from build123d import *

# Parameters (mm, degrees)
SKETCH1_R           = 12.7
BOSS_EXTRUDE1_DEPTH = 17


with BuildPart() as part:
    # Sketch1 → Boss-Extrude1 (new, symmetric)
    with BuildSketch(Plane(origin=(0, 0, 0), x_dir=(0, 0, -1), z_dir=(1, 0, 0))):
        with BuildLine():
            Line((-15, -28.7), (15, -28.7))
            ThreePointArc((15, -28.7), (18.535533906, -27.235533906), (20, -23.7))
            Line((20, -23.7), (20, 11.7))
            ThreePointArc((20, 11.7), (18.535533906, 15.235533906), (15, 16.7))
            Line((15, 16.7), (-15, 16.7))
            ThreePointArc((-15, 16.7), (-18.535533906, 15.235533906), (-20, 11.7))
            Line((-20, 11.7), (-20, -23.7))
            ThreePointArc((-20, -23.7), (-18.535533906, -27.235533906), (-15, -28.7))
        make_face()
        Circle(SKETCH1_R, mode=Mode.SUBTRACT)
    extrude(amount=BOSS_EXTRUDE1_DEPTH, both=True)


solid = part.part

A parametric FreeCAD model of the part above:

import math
import FreeCAD as App
import Part
import Sketcher

V = App.Vector

doc = App.newDocument("Part")
body = doc.addObject("PartDesign::Body", "Body")

# Sketch on YZ plane
sketch1 = body.newObject("Sketcher::SketchObject", "Sketch")
sketch1.AttachmentSupport = (doc.getObject("YZ_Plane"), [""])
sketch1.MapMode = "FlatFace"
sketch1.addGeometry(Part.LineSegment(V(-28.7, 15, 0), V(-28.7, -15, 0)), False)
sketch1.addGeometry(Part.ArcOfCircle(Part.Circle(V(-23.7, -15, 0), V(0, 0, 1), 5), math.radians(180), math.radians(270)), False)
sketch1.addGeometry(Part.LineSegment(V(-23.7, -20, 0), V(11.7, -20, 0)), False)
sketch1.addGeometry(Part.ArcOfCircle(Part.Circle(V(11.7, -15, 0), V(0, 0, 1), 5), math.radians(-90), math.radians(0)), False)
sketch1.addGeometry(Part.LineSegment(V(16.7, -15, 0), V(16.7, 15, 0)), False)
sketch1.addGeometry(Part.ArcOfCircle(Part.Circle(V(11.7, 15, 0), V(0, 0, 1), 5), math.radians(0), math.radians(90)), False)
sketch1.addGeometry(Part.LineSegment(V(11.7, 20, 0), V(-23.7, 20, 0)), False)
sketch1.addGeometry(Part.ArcOfCircle(Part.Circle(V(-23.7, 15, 0), V(0, 0, 1), 5), math.radians(90), math.radians(180)), False)
sketch1.addGeometry(Part.Circle(V(0, 0, 0), V(0, 0, 1), 12.7), False)
sketch1.addConstraint(Sketcher.Constraint("Tangent", 0, 2, 1, 1))
sketch1.addConstraint(Sketcher.Constraint("Tangent", 1, 2, 2, 1))
sketch1.addConstraint(Sketcher.Constraint("Tangent", 2, 2, 3, 1))
sketch1.addConstraint(Sketcher.Constraint("Tangent", 3, 2, 4, 1))
sketch1.addConstraint(Sketcher.Constraint("Tangent", 4, 2, 5, 1))
sketch1.addConstraint(Sketcher.Constraint("Tangent", 5, 2, 6, 1))
sketch1.addConstraint(Sketcher.Constraint("Tangent", 6, 2, 7, 1))
sketch1.addConstraint(Sketcher.Constraint("Tangent", 7, 2, 0, 1))
sketch1.addConstraint(Sketcher.Constraint("Vertical", 0))
sketch1.addConstraint(Sketcher.Constraint("Horizontal", 2))
sketch1.addConstraint(Sketcher.Constraint("Vertical", 4))
sketch1.addConstraint(Sketcher.Constraint("Horizontal", 6))
sketch1.addConstraint(Sketcher.Constraint("Coincident", 8, 3, -1, 1))
sketch1.addConstraint(Sketcher.Constraint("Equal", 1, 3))
sketch1.addConstraint(Sketcher.Constraint("Equal", 3, 5))
sketch1.addConstraint(Sketcher.Constraint("Equal", 5, 7))
sketch1.addConstraint(Sketcher.Constraint("Radius", 1, 5.0))
sketch1.addConstraint(Sketcher.Constraint("Diameter", 8, 25.4))
sketch1.addConstraint(Sketcher.Constraint("DistanceY", 0, 2, 0, 1, 30.0))
sketch1.addConstraint(Sketcher.Constraint("DistanceX", 2, 1, 2, 2, 35.4))
sketch1.addConstraint(Sketcher.Constraint("DistanceY", 1, 3, -1, 1, 15.0))
sketch1.addConstraint(Sketcher.Constraint("DistanceX", 1, 3, -1, 1, 23.7))
pad1 = body.newObject("PartDesign::Pad", "Pad")
pad1.Profile = sketch1
pad1.Length = 34
pad1.Midplane = True

doc.recompute()
